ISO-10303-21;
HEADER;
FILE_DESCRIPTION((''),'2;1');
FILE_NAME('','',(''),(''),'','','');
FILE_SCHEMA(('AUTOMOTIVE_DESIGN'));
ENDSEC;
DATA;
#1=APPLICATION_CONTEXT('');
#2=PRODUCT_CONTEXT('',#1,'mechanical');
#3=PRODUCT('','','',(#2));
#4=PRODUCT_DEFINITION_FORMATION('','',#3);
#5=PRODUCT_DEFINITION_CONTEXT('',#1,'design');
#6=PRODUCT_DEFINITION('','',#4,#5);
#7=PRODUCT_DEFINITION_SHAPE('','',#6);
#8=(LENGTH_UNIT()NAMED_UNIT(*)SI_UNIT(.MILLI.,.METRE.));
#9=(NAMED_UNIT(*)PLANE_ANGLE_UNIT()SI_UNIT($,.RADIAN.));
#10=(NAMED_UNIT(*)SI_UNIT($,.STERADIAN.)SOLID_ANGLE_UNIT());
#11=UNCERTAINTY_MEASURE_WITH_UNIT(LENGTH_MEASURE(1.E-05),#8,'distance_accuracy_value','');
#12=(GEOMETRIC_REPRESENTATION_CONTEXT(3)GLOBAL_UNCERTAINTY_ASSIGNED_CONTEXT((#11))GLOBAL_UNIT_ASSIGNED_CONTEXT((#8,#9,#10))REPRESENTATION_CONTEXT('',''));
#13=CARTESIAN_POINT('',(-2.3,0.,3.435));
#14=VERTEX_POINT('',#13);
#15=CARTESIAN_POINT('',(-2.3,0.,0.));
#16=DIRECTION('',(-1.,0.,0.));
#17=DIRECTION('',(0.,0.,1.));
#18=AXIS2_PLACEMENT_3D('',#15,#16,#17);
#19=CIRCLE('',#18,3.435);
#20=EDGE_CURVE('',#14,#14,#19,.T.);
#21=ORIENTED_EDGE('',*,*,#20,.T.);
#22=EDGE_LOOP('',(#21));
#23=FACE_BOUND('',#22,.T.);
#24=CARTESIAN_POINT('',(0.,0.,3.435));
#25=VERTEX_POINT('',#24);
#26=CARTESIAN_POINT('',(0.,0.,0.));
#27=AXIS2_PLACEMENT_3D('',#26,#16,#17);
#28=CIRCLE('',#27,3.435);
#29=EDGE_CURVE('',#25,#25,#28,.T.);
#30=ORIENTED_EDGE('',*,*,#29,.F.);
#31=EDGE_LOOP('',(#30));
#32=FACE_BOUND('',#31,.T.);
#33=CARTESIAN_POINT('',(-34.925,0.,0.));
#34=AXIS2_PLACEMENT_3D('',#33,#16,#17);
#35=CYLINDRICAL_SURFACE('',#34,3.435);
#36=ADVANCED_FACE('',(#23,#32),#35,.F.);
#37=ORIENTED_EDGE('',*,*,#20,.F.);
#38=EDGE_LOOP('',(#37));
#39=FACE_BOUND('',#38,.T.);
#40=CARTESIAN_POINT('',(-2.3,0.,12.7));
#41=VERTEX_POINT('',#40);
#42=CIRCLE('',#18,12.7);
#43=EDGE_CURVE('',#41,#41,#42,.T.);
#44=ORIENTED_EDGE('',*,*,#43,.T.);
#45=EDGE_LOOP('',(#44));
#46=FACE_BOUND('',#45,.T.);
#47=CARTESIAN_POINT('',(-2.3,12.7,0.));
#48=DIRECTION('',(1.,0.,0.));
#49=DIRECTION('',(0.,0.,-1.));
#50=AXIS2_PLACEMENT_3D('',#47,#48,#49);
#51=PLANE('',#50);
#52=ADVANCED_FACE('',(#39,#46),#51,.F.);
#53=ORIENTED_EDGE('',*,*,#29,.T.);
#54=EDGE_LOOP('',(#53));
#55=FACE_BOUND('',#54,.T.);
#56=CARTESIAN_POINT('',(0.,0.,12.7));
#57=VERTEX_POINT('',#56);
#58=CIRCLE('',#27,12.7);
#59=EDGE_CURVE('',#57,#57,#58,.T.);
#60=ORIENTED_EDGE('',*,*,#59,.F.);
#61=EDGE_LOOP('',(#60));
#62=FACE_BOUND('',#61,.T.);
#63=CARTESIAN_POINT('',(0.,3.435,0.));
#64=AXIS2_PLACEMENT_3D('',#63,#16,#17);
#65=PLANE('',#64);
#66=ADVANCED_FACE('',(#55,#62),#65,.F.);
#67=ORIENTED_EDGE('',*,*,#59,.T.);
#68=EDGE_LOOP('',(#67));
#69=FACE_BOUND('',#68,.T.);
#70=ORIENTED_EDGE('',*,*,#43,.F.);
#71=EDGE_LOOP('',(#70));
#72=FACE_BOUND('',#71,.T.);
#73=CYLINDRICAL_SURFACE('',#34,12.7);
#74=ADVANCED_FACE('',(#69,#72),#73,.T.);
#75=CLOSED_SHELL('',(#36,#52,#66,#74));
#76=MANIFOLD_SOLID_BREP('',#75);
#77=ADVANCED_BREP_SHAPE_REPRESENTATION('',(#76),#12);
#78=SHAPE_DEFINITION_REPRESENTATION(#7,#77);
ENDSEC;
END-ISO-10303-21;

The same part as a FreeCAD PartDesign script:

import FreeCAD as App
import Part
import Sketcher
from FreeCAD import Vector

doc = App.newDocument("Part")
body = doc.addObject("PartDesign::Body", "Body")

# Sketch on XY plane
sketch1 = body.newObject("Sketcher::SketchObject", "Sketch")
sketch1.AttachmentSupport = (doc.getObject("XY_Plane"), [""])
sketch1.MapMode = "FlatFace"
sketch1.addGeometry([
    Part.LineSegment(Vector(-2.3, 12.7, 0), Vector(-2.3, 3.4, 0)),
    Part.LineSegment(Vector(-2.3, 3.4, 0), Vector(0, 3.4, 0)),
    Part.LineSegment(Vector(0, 3.4, 0), Vector(0, 12.7, 0)),
    Part.LineSegment(Vector(0, 12.7, 0), Vector(-2.3, 12.7, 0)),
], False)
sketch1.addConstraint([
    Sketcher.Constraint("Coincident", 0, 2, 1, 1),
    Sketcher.Constraint("Coincident", 1, 2, 2, 1),
    Sketcher.Constraint("Coincident", 2, 2, 3, 1),
    Sketcher.Constraint("Coincident", 3, 2, 0, 1),
    Sketcher.Constraint("Vertical", 0),
    Sketcher.Constraint("Horizontal", 1),
    Sketcher.Constraint("Vertical", 2),
    Sketcher.Constraint("Horizontal", 3),
    Sketcher.Constraint("PointOnObject", 1, 2, -2),
    Sketcher.Constraint("DistanceX", 1, 1, 1, 2, 2.3),
    Sketcher.Constraint("DistanceY", -1, 1, 2, 2, 12.7),
    Sketcher.Constraint("DistanceY", 0, 2, 0, 1, 9.265),
])
revolution = body.newObject("PartDesign::Revolution", "Revolution")
revolution.Profile = sketch1
revolution.ReferenceAxis = (sketch1, ["H_Axis"])
revolution.Angle = 360

doc.recompute()
